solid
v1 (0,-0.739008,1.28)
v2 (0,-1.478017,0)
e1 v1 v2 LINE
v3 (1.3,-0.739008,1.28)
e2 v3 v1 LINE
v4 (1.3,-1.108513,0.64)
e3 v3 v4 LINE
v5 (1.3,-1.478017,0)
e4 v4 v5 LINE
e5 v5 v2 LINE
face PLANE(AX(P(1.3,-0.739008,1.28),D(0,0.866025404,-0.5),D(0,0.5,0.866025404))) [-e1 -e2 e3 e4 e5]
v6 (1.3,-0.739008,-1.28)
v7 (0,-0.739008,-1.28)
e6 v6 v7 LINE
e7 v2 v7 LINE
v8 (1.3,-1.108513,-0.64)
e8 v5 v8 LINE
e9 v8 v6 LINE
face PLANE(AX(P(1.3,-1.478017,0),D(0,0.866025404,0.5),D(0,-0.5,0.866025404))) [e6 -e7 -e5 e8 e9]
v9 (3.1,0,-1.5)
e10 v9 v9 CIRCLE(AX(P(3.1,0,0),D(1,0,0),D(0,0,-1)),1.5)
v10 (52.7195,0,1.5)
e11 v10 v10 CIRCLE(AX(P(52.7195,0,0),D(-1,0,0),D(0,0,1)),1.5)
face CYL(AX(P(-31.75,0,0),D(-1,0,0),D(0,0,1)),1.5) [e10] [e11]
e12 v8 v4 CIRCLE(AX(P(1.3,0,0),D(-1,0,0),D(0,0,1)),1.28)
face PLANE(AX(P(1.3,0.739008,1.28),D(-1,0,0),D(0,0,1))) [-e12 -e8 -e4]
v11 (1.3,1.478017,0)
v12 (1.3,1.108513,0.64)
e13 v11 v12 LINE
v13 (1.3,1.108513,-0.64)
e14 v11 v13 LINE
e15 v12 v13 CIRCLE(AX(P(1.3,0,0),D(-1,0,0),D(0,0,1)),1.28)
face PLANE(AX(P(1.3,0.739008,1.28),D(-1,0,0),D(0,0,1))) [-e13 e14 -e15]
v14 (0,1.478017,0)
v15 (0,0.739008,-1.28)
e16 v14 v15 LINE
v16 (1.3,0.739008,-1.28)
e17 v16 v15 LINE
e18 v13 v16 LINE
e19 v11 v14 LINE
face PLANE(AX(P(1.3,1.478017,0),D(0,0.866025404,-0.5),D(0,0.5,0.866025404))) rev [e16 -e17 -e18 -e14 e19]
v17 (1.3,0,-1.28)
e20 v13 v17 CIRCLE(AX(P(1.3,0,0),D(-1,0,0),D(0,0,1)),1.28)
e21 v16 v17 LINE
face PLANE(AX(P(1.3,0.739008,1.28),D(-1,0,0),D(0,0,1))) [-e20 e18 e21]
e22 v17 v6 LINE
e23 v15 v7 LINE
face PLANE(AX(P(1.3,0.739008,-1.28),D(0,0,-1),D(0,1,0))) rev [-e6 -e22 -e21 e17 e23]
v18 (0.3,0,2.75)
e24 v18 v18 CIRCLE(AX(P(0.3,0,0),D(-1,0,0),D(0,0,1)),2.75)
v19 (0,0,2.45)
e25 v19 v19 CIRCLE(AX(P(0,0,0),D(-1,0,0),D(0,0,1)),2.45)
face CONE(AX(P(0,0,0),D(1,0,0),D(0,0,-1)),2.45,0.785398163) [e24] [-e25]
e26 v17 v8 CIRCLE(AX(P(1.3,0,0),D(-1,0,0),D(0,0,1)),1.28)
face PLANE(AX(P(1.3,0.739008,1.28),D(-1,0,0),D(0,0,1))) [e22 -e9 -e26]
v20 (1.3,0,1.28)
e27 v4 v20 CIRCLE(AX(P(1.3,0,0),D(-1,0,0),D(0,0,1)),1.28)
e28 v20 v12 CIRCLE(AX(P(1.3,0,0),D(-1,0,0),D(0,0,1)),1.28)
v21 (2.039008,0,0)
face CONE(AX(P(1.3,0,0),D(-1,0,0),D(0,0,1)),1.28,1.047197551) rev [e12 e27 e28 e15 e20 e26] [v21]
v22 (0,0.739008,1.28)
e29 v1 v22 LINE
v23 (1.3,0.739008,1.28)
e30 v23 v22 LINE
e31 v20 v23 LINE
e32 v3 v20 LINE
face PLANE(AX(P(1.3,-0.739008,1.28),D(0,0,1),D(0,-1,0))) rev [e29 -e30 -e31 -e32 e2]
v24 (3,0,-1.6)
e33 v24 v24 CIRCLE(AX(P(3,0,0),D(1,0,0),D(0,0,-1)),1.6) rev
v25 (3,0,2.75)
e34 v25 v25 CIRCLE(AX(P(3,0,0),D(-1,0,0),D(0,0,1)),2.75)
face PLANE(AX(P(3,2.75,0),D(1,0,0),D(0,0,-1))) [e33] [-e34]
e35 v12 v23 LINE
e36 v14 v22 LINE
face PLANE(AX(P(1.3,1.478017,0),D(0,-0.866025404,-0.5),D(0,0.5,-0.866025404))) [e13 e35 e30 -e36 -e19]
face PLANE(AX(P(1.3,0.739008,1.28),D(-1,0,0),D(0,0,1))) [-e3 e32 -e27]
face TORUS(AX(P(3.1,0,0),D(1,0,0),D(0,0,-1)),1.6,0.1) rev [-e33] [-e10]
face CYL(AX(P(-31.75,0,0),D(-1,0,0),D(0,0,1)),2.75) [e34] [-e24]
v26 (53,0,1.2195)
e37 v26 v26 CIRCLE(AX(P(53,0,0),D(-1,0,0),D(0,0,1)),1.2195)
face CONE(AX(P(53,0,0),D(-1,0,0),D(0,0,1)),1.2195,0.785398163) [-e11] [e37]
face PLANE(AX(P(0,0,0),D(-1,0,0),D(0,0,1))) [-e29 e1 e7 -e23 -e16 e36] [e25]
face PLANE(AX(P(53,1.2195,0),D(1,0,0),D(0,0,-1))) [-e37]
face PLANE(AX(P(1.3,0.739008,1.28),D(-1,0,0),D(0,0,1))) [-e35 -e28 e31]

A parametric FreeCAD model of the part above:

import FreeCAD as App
import Part
import Sketcher

V = App.Vector
Q = App.Units.Quantity


def edges_at(feature, points):
    """Names of the edges that pass closest to the given points."""
    edges = feature.Shape.Edges
    near = lambda p: min(range(len(edges)), key=lambda i: edges[i].distToShape(Part.Vertex(*p))[0])
    return sorted({f"Edge{near(p) + 1}" for p in points})

doc = App.newDocument("Part")
params = doc.addObject("Spreadsheet::Sheet", "Params")
for row, (alias, value) in enumerate([
    ("sketch1_width", "53 mm"),
    ("sketch1_width2", "2.7 mm"),
    ("sketch1_height", "2.45 mm"),
    ("sketch1_height2", "1.25 mm"),
    ("revolution_angle", "360 deg"),
    ("fillet_radius", "0.1 mm"),
    ("sketch2_width", "1.3 mm"),
    ("sketch2_height", "1.28 mm"),
    ("groove_angle", "360 deg"),
    ("pocket1_length", "1.3 mm"),
], start=1):
    params.set(f"A{row}", alias)
    params.set(f"B{row}", "=" + value)
    params.setAlias(f"B{row}", alias)

body = doc.addObject("PartDesign::Body", "Body")

# Sketch on XY plane
sketch1 = body.newObject("Sketcher::SketchObject", "Sketch")
sketch1.AttachmentSupport = (doc.getObject("XY_Plane"), [""])
sketch1.MapMode = "FlatFace"
sketch1.addGeometry([
    Part.LineSegment(V(0, 2.45, 0), V(0, 0, 0)),  # 0
    Part.LineSegment(V(0, 0, 0), V(53, 0, 0)),  # 1
    Part.LineSegment(V(53, 0, 0), V(53, 1.22, 0)),  # 2
    Part.LineSegment(V(53, 1.22, 0), V(52.72, 1.5, 0)),  # 3
    Part.LineSegment(V(52.72, 1.5, 0), V(3, 1.5, 0)),  # 4
    Part.LineSegment(V(3, 1.5, 0), V(3, 2.75, 0)),  # 5
    Part.LineSegment(V(3, 2.75, 0), V(0.3, 2.75, 0)),  # 6
    Part.LineSegment(V(0.3, 2.75, 0), V(0, 2.45, 0)),  # 7
], False)
sketch1.addConstraint([
    Sketcher.Constraint("Coincident", 0, 2, 1, 1),
    Sketcher.Constraint("Coincident", 1, 2, 2, 1),
    Sketcher.Constraint("Coincident", 2, 2, 3, 1),
    Sketcher.Constraint("Coincident", 3, 2, 4, 1),
    Sketcher.Constraint("Coincident", 4, 2, 5, 1),
    Sketcher.Constraint("Coincident", 5, 2, 6, 1),
    Sketcher.Constraint("Coincident", 6, 2, 7, 1),
    Sketcher.Constraint("Coincident", 7, 2, 0, 1),
    Sketcher.Constraint("Vertical", 0),
    Sketcher.Constraint("Horizontal", 1),
    Sketcher.Constraint("Vertical", 2),
    Sketcher.Constraint("Horizontal", 4),
    Sketcher.Constraint("Vertical", 5),
    Sketcher.Constraint("Horizontal", 6),
    Sketcher.Constraint("Coincident", 0, 2, -1, 1),
    Sketcher.Constraint("Perpendicular", 3, 7),
    Sketcher.Constraint("DistanceX", 1, 1, 1, 2, 53.0),
    Sketcher.Constraint("Angle", 3, Q("135 deg")),
    Sketcher.Constraint("DistanceX", 6, 2, 6, 1, 2.7),
    Sketcher.Constraint("DistanceX", -1, 1, 4, 2, 3.0),
    Sketcher.Constraint("DistanceY", 0, 2, 0, 1, 2.45),
    Sketcher.Constraint("DistanceY", 5, 1, 5, 2, 1.25),
    Sketcher.Constraint("DistanceX", 4, 2, 4, 1, 49.7195),
])
sketch1.setExpression("Constraints[16]", "Params.sketch1_width")
sketch1.setExpression("Constraints[18]", "Params.sketch1_width2")
sketch1.setExpression("Constraints[20]", "Params.sketch1_height")
sketch1.setExpression("Constraints[21]", "Params.sketch1_height2")
revolution = body.newObject("PartDesign::Revolution", "Revolution")
revolution.Profile = sketch1
revolution.ReferenceAxis = (sketch1, ["H_Axis"])
revolution.setExpression("Angle", "Params.revolution_angle")
doc.recompute()

fillet = body.newObject("PartDesign::Fillet", "Fillet")
fillet.Base = (revolution, edges_at(revolution, [(3, 0, -1.5)]))
fillet.setExpression("Radius", "Params.fillet_radius")

# Sketch on XY plane
sketch2 = body.newObject("Sketcher::SketchObject", "Sketch001")
sketch2.AttachmentSupport = (doc.getObject("XY_Plane"), [""])
sketch2.MapMode = "FlatFace"
sketch2.addGeometry([
    Part.LineSegment(V(1.3, 1.3, 0), V(0, 1.3, 0)),
    Part.LineSegment(V(0, 1.3, 0), V(0, 0, 0)),
    Part.LineSegment(V(0, 0, 0), V(2, 0, 0)),
    Part.LineSegment(V(2, 0, 0), V(1.3, 1.3, 0)),
], False)
sketch2.addConstraint([
    Sketcher.Constraint("Coincident", 0, 2, 1, 1),
    Sketcher.Constraint("Coincident", 1, 2, 2, 1),
    Sketcher.Constraint("Coincident", 2, 2, 3, 1),
    Sketcher.Constraint("Coincident", 3, 2, 0, 1),
    Sketcher.Constraint("Horizontal", 0),
    Sketcher.Constraint("Vertical", 1),
    Sketcher.Constraint("Horizontal", 2),
    Sketcher.Constraint("Coincident", 1, 2, -1, 1),
    Sketcher.Constraint("Angle", 3, Q("120 deg")),
    Sketcher.Constraint("DistanceX", 0, 2, 0, 1, 1.3),
    Sketcher.Constraint("DistanceY", 1, 2, 1, 1, 1.28),
])
sketch2.setExpression("Constraints[9]", "Params.sketch2_width")
sketch2.setExpression("Constraints[10]", "Params.sketch2_height")
groove = body.newObject("PartDesign::Groove", "Groove")
groove.Profile = sketch2
groove.ReferenceAxis = (sketch2, ["H_Axis"])
groove.setExpression("Angle", "Params.groove_angle")

# Sketch on YZ plane
sketch3 = body.newObject("Sketcher::SketchObject", "Sketch002")
sketch3.AttachmentSupport = (doc.getObject("YZ_Plane"), [""])
sketch3.MapMode = "FlatFace"
sketch3.addGeometry([
    Part.LineSegment(V(1.5, 0, 0), V(0.7, -1.3, 0)),  # 0
    Part.LineSegment(V(0.7, -1.3, 0), V(-0.7, -1.3, 0)),  # 1
    Part.LineSegment(V(-0.7, -1.3, 0), V(-1.5, 0, 0)),  # 2
    Part.LineSegment(V(-1.5, 0, 0), V(-0.7, 1.3, 0)),  # 3
    Part.LineSegment(V(-0.7, 1.3, 0), V(0.7, 1.3, 0)),  # 4
    Part.LineSegment(V(0.7, 1.3, 0), V(1.5, 0, 0)),  # 5
], False)
sketch3.addConstraint([
    Sketcher.Constraint("Coincident", 0, 2, 1, 1),
    Sketcher.Constraint("Coincident", 1, 2, 2, 1),
    Sketcher.Constraint("Coincident", 2, 2, 3, 1),
    Sketcher.Constraint("Coincident", 3, 2, 4, 1),
    Sketcher.Constraint("Coincident", 4, 2, 5, 1),
    Sketcher.Constraint("Coincident", 5, 2, 0, 1),
    Sketcher.Constraint("Horizontal", 1),
    Sketcher.Constraint("Horizontal", 4),
    Sketcher.Constraint("Symmetric", 0, 2, 3, 2, -1, 1),
    Sketcher.Constraint("Symmetric", 2, 2, 5, 2, -1, 1),
    Sketcher.Constraint("PointOnObject", 2, 2, -1),
    Sketcher.Constraint("Parallel", 2, 5),
    Sketcher.Constraint("Vertical", 1, 2, 3, 2),
    Sketcher.Constraint("Angle", 0, Q("-120 deg")),
    Sketcher.Constraint("DistanceY", 0, 2, -1, 1, 1.28),
    Sketcher.Constraint("DistanceX", 1, 2, 1, 1, 1.478017),
])
pocket1 = body.newObject("PartDesign::Pocket", "Pocket")
pocket1.Profile = sketch3
pocket1.setExpression("Length", "Params.pocket1_length")
pocket1.Reversed = True

doc.recompute()
